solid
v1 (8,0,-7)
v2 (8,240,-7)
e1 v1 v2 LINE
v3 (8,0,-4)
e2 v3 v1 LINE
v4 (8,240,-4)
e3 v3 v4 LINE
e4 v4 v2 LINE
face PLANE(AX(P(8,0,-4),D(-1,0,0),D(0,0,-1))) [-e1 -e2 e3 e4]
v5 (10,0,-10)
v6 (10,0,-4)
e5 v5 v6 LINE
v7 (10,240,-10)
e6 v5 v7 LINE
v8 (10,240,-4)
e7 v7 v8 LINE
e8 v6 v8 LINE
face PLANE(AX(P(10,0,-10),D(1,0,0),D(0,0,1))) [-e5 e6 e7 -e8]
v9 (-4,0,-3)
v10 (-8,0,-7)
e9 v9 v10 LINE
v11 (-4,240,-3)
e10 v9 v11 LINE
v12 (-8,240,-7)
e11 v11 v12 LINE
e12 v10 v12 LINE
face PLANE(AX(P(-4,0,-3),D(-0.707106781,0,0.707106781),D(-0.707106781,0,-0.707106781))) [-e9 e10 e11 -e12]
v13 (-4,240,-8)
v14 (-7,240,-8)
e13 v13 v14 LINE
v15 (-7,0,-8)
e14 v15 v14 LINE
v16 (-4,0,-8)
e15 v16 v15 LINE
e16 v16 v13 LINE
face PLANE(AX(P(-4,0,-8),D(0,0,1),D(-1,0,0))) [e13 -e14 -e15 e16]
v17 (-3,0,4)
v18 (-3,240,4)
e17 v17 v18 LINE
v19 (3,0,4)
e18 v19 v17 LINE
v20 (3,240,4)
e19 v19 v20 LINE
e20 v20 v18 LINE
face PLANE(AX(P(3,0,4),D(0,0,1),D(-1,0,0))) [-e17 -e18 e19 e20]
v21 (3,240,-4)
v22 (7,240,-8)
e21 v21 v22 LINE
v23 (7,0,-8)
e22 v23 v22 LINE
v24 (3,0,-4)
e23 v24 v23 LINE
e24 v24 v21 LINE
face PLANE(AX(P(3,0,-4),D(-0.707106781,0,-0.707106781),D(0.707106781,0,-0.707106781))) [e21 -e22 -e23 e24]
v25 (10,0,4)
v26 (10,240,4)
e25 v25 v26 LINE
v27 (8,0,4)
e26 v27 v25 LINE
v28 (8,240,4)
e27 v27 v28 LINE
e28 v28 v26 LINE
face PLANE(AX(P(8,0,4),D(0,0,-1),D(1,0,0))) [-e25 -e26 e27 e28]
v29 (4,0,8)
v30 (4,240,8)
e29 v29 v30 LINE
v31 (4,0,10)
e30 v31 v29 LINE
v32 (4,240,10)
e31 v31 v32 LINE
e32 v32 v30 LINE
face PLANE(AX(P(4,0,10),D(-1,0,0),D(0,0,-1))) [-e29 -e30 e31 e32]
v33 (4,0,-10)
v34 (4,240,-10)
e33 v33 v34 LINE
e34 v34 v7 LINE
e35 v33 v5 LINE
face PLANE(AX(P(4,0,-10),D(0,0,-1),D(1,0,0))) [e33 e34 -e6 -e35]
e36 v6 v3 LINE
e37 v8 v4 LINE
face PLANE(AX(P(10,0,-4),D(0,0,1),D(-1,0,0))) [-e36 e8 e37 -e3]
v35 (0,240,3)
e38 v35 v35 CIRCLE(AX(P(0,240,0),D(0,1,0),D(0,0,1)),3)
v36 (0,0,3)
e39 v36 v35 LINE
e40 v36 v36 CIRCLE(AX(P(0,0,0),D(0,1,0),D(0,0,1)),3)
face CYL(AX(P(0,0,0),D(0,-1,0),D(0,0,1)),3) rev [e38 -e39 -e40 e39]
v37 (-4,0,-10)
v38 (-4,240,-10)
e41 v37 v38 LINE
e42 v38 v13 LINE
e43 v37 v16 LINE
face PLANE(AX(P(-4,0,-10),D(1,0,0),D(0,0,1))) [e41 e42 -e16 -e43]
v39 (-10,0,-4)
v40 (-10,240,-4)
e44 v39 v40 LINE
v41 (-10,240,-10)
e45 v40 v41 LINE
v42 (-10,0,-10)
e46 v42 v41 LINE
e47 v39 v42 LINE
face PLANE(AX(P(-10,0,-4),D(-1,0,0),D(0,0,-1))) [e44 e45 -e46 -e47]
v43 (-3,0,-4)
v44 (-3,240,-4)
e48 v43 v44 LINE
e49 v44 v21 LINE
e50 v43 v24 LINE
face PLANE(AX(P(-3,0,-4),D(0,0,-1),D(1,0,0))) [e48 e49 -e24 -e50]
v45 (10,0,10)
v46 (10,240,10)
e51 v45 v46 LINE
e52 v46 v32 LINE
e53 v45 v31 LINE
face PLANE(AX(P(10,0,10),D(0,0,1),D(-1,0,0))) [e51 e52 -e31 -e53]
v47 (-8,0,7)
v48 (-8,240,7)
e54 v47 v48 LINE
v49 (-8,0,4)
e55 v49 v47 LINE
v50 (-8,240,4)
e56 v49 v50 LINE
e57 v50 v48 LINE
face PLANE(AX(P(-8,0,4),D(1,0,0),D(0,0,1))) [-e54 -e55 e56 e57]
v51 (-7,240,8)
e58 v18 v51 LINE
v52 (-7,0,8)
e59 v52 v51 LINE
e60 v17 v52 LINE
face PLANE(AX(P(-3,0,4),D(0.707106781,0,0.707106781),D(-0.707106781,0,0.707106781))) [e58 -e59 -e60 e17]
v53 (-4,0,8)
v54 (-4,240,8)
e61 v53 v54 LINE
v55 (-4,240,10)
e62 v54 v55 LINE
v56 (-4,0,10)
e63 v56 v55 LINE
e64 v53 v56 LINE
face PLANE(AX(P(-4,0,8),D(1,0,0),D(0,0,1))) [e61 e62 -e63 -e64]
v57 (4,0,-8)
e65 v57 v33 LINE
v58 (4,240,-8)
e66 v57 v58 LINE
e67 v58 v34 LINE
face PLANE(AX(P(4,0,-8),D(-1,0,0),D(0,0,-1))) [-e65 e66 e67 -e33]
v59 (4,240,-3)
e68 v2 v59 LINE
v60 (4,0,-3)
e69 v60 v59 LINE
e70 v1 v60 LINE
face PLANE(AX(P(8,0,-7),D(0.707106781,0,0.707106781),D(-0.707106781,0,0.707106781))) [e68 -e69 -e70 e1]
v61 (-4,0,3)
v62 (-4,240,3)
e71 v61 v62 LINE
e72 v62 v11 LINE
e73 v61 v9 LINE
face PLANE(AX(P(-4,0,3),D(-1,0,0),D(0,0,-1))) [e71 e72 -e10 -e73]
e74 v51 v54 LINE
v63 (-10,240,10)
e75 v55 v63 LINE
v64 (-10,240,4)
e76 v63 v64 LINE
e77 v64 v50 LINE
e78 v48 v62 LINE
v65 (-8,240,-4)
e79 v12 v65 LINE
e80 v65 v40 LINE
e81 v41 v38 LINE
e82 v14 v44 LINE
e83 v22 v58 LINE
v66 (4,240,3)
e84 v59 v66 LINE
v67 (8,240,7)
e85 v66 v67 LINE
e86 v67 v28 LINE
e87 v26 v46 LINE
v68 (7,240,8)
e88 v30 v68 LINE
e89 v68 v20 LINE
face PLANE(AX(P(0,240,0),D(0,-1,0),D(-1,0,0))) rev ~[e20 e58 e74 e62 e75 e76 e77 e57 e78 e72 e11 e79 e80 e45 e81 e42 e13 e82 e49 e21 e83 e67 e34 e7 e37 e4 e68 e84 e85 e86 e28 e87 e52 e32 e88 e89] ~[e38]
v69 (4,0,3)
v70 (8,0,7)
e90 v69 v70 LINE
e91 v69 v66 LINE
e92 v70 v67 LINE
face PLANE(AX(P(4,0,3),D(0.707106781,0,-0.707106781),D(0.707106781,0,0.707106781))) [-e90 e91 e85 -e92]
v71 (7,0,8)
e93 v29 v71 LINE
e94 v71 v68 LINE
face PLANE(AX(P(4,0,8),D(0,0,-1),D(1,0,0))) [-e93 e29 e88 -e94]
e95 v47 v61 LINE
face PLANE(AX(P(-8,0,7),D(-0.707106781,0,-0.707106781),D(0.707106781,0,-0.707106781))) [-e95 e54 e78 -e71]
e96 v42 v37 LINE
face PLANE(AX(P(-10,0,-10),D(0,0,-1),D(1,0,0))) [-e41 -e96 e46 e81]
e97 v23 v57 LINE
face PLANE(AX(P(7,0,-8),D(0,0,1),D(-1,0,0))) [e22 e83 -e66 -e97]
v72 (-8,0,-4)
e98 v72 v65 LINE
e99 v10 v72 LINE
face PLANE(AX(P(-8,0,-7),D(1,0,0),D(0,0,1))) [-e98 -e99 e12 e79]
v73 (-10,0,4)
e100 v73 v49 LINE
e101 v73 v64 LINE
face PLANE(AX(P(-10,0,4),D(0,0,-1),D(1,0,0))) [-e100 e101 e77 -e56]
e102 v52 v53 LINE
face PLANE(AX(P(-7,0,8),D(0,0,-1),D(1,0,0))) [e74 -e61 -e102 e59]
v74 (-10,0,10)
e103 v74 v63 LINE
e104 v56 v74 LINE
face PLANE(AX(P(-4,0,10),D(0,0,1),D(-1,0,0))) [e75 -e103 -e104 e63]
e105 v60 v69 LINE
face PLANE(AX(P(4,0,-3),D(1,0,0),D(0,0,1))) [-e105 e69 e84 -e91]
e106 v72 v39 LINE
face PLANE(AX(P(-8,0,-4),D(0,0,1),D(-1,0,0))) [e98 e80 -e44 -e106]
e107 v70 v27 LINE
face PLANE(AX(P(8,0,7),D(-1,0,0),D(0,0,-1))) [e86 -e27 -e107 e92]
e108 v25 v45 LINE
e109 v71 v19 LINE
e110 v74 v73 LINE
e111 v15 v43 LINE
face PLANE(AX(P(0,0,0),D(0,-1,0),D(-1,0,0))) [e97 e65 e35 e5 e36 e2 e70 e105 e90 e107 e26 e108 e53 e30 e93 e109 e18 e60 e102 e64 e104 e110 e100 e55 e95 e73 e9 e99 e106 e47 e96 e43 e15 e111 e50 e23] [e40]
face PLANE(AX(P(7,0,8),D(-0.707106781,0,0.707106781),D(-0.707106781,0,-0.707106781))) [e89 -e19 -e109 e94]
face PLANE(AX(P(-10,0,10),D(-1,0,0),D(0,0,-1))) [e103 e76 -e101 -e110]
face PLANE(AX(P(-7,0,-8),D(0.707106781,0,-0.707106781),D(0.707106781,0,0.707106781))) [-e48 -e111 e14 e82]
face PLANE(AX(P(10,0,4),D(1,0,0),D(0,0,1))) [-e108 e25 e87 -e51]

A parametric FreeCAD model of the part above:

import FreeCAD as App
import Part
import Sketcher

doc = App.newDocument("Part")
body = doc.addObject("PartDesign::Body", "Body")

# Sketch on XZ plane
sketch1 = body.newObject("Sketcher::SketchObject", "Sketch")
sketch1.AttachmentSupport = (doc.getObject("XZ_Plane"), [""])
sketch1.MapMode = "FlatFace"
sketch1.addGeometry(Part.LineSegment(App.Vector(-4, -8, 0), App.Vector(-4, -10, 0)), False)
sketch1.addGeometry(Part.LineSegment(App.Vector(-4, -10, 0), App.Vector(-10, -10, 0)), False)
sketch1.addGeometry(Part.LineSegment(App.Vector(-10, -10, 0), App.Vector(-10, -4, 0)), False)
sketch1.addGeometry(Part.LineSegment(App.Vector(-10, -4, 0), App.Vector(-8, -4, 0)), False)
sketch1.addGeometry(Part.LineSegment(App.Vector(-8, -4, 0), App.Vector(-8, -7, 0)), False)
sketch1.addGeometry(Part.LineSegment(App.Vector(-8, -7, 0), App.Vector(-4, -3, 0)), False)
sketch1.addGeometry(Part.LineSegment(App.Vector(-4, -3, 0), App.Vector(-4, 3, 0)), False)
sketch1.addGeometry(Part.LineSegment(App.Vector(-4, 3, 0), App.Vector(-8, 7, 0)), False)
sketch1.addGeometry(Part.LineSegment(App.Vector(-8, 7, 0), App.Vector(-8, 4, 0)), False)
sketch1.addGeometry(Part.LineSegment(App.Vector(-8, 4, 0), App.Vector(-10, 4, 0)), False)
sketch1.addGeometry(Part.LineSegment(App.Vector(-10, 4, 0), App.Vector(-10, 10, 0)), False)
sketch1.addGeometry(Part.LineSegment(App.Vector(-10, 10, 0), App.Vector(-4, 10, 0)), False)
sketch1.addGeometry(Part.LineSegment(App.Vector(-4, 10, 0), App.Vector(-4, 8, 0)), False)
sketch1.addGeometry(Part.LineSegment(App.Vector(-4, 8, 0), App.Vector(-7, 8, 0)), False)
sketch1.addGeometry(Part.LineSegment(App.Vector(-7, 8, 0), App.Vector(-3, 4, 0)), False)
sketch1.addGeometry(Part.LineSegment(App.Vector(-3, 4, 0), App.Vector(3, 4, 0)), False)
sketch1.addGeometry(Part.LineSegment(App.Vector(3, 4, 0), App.Vector(7, 8, 0)), False)
sketch1.addGeometry(Part.LineSegment(App.Vector(7, 8, 0), App.Vector(4, 8, 0)), False)
sketch1.addGeometry(Part.LineSegment(App.Vector(4, 8, 0), App.Vector(4, 10, 0)), False)
sketch1.addGeometry(Part.LineSegment(App.Vector(4, 10, 0), App.Vector(10, 10, 0)), False)
sketch1.addGeometry(Part.LineSegment(App.Vector(10, 10, 0), App.Vector(10, 4, 0)), False)
sketch1.addGeometry(Part.LineSegment(App.Vector(10, 4, 0), App.Vector(8, 4, 0)), False)
sketch1.addGeometry(Part.LineSegment(App.Vector(8, 4, 0), App.Vector(8, 7, 0)), False)
sketch1.addGeometry(Part.LineSegment(App.Vector(8, 7, 0), App.Vector(4, 3, 0)), False)
sketch1.addGeometry(Part.LineSegment(App.Vector(4, 3, 0), App.Vector(4, -3, 0)), False)
sketch1.addGeometry(Part.LineSegment(App.Vector(4, -3, 0), App.Vector(8, -7, 0)), False)
sketch1.addGeometry(Part.LineSegment(App.Vector(8, -7, 0), App.Vector(8, -4, 0)), False)
sketch1.addGeometry(Part.LineSegment(App.Vector(8, -4, 0), App.Vector(10, -4, 0)), False)
sketch1.addGeometry(Part.LineSegment(App.Vector(10, -4, 0), App.Vector(10, -10, 0)), False)
sketch1.addGeometry(Part.LineSegment(App.Vector(10, -10, 0), App.Vector(4, -10, 0)), False)
sketch1.addGeometry(Part.LineSegment(App.Vector(4, -10, 0), App.Vector(4, -8, 0)), False)
sketch1.addGeometry(Part.LineSegment(App.Vector(4, -8, 0), App.Vector(7, -8, 0)), False)
sketch1.addGeometry(Part.LineSegment(App.Vector(7, -8, 0), App.Vector(3, -4, 0)), False)
sketch1.addGeometry(Part.LineSegment(App.Vector(3, -4, 0), App.Vector(-3, -4, 0)), False)
sketch1.addGeometry(Part.LineSegment(App.Vector(-3, -4, 0), App.Vector(-7, -8, 0)), False)
sketch1.addGeometry(Part.LineSegment(App.Vector(-7, -8, 0), App.Vector(-4, -8, 0)), False)
sketch1.addGeometry(Part.Circle(App.Vector(0, 0, 0), App.Vector(0, 0, 1), 3), False)
sketch1.addConstraint(Sketcher.Constraint("Coincident", 0, 2, 1, 1))
sketch1.addConstraint(Sketcher.Constraint("Coincident", 1, 2, 2, 1))
sketch1.addConstraint(Sketcher.Constraint("Coincident", 2, 2, 3, 1))
sketch1.addConstraint(Sketcher.Constraint("Coincident", 3, 2, 4, 1))
sketch1.addConstraint(Sketcher.Constraint("Coincident", 4, 2, 5, 1))
sketch1.addConstraint(Sketcher.Constraint("Coincident", 5, 2, 6, 1))
sketch1.addConstraint(Sketcher.Constraint("Coincident", 6, 2, 7, 1))
sketch1.addConstraint(Sketcher.Constraint("Coincident", 7, 2, 8, 1))
sketch1.addConstraint(Sketcher.Constraint("Coincident", 8, 2, 9, 1))
sketch1.addConstraint(Sketcher.Constraint("Coincident", 9, 2, 10, 1))
sketch1.addConstraint(Sketcher.Constraint("Coincident", 10, 2, 11, 1))
sketch1.addConstraint(Sketcher.Constraint("Coincident", 11, 2, 12, 1))
sketch1.addConstraint(Sketcher.Constraint("Coincident", 12, 2, 13, 1))
sketch1.addConstraint(Sketcher.Constraint("Coincident", 13, 2, 14, 1))
sketch1.addConstraint(Sketcher.Constraint("Coincident", 14, 2, 15, 1))
sketch1.addConstraint(Sketcher.Constraint("Coincident", 15, 2, 16, 1))
sketch1.addConstraint(Sketcher.Constraint("Coincident", 16, 2, 17, 1))
sketch1.addConstraint(Sketcher.Constraint("Coincident", 17, 2, 18, 1))
sketch1.addConstraint(Sketcher.Constraint("Coincident", 18, 2, 19, 1))
sketch1.addConstraint(Sketcher.Constraint("Coincident", 19, 2, 20, 1))
sketch1.addConstraint(Sketcher.Constraint("Coincident", 20, 2, 21, 1))
sketch1.addConstraint(Sketcher.Constraint("Coincident", 21, 2, 22, 1))
sketch1.addConstraint(Sketcher.Constraint("Coincident", 22, 2, 23, 1))
sketch1.addConstraint(Sketcher.Constraint("Coincident", 23, 2, 24, 1))
sketch1.addConstraint(Sketcher.Constraint("Coincident", 24, 2, 25, 1))
sketch1.addConstraint(Sketcher.Constraint("Coincident", 25, 2, 26, 1))
sketch1.addConstraint(Sketcher.Constraint("Coincident", 26, 2, 27, 1))
sketch1.addConstraint(Sketcher.Constraint("Coincident", 27, 2, 28, 1))
sketch1.addConstraint(Sketcher.Constraint("Coincident", 28, 2, 29, 1))
sketch1.addConstraint(Sketcher.Constraint("Coincident", 29, 2, 30, 1))
sketch1.addConstraint(Sketcher.Constraint("Coincident", 30, 2, 31, 1))
sketch1.addConstraint(Sketcher.Constraint("Coincident", 31, 2, 32, 1))
sketch1.addConstraint(Sketcher.Constraint("Coincident", 32, 2, 33, 1))
sketch1.addConstraint(Sketcher.Constraint("Coincident", 33, 2, 34, 1))
sketch1.addConstraint(Sketcher.Constraint("Coincident", 34, 2, 35, 1))
sketch1.addConstraint(Sketcher.Constraint("Coincident", 35, 2, 0, 1))
sketch1.addConstraint(Sketcher.Constraint("Vertical", 0))
sketch1.addConstraint(Sketcher.Constraint("Horizontal", 1))
sketch1.addConstraint(Sketcher.Constraint("Vertical", 2))
sketch1.addConstraint(Sketcher.Constraint("Horizontal", 3))
sketch1.addConstraint(Sketcher.Constraint("Vertical", 4))
sketch1.addConstraint(Sketcher.Constraint("Vertical", 6))
sketch1.addConstraint(Sketcher.Constraint("Vertical", 8))
sketch1.addConstraint(Sketcher.Constraint("Horizontal", 9))
sketch1.addConstraint(Sketcher.Constraint("Vertical", 10))
sketch1.addConstraint(Sketcher.Constraint("Horizontal", 11))
sketch1.addConstraint(Sketcher.Constraint("Vertical", 12))
sketch1.addConstraint(Sketcher.Constraint("Horizontal", 13))
sketch1.addConstraint(Sketcher.Constraint("Horizontal", 15))
sketch1.addConstraint(Sketcher.Constraint("Horizontal", 17))
sketch1.addConstraint(Sketcher.Constraint("Vertical", 18))
sketch1.addConstraint(Sketcher.Constraint("Horizontal", 19))
sketch1.addConstraint(Sketcher.Constraint("Vertical", 20))
sketch1.addConstraint(Sketcher.Constraint("Horizontal", 21))
sketch1.addConstraint(Sketcher.Constraint("Vertical", 22))
sketch1.addConstraint(Sketcher.Constraint("Vertical", 24))
sketch1.addConstraint(Sketcher.Constraint("Vertical", 26))
sketch1.addConstraint(Sketcher.Constraint("Horizontal", 27))
sketch1.addConstraint(Sketcher.Constraint("Vertical", 28))
sketch1.addConstraint(Sketcher.Constraint("Horizontal", 29))
sketch1.addConstraint(Sketcher.Constraint("Vertical", 30))
sketch1.addConstraint(Sketcher.Constraint("Horizontal", 31))
sketch1.addConstraint(Sketcher.Constraint("Horizontal", 33))
sketch1.addConstraint(Sketcher.Constraint("Horizontal", 35))
sketch1.addConstraint(Sketcher.Constraint("Coincident", 36, 3, -1, 1))
sketch1.addConstraint(Sketcher.Constraint("Symmetric", 0, 2, 18, 2, -1, 1))
sketch1.addConstraint(Sketcher.Constraint("Symmetric", 2, 2, 20, 2, -1, 1))
sketch1.addConstraint(Sketcher.Constraint("Symmetric", 4, 2, 22, 2, -1, 1))
sketch1.addConstraint(Sketcher.Constraint("Symmetric", 5, 2, 23, 2, -1, 1))
sketch1.addConstraint(Sketcher.Constraint("Symmetric", 7, 2, 25, 2, -1, 1))
sketch1.addConstraint(Sketcher.Constraint("Symmetric", 9, 2, 27, 2, -1, 1))
sketch1.addConstraint(Sketcher.Constraint("Symmetric", 11, 2, 29, 2, -1, 1))
sketch1.addConstraint(Sketcher.Constraint("Symmetric", 13, 2, 31, 2, -1, 1))
sketch1.addConstraint(Sketcher.Constraint("Symmetric", 14, 2, 32, 2, -1, 1))
sketch1.addConstraint(Sketcher.Constraint("Symmetric", 16, 2, 34, 2, -1, 1))
sketch1.addConstraint(Sketcher.Constraint("Symmetric", 13, 2, 16, 2, -2))
sketch1.addConstraint(Sketcher.Constraint("Symmetric", 11, 2, 18, 2, -2))
sketch1.addConstraint(Sketcher.Constraint("Symmetric", 9, 2, 20, 2, -2))
sketch1.addConstraint(Sketcher.Constraint("Symmetric", 7, 2, 22, 2, -2))
sketch1.addConstraint(Sketcher.Constraint("Perpendicular", 5, 7))
sketch1.addConstraint(Sketcher.Constraint("Parallel", 7, 14))
sketch1.addConstraint(Sketcher.Constraint("Perpendicular", 14, 16))
sketch1.addConstraint(Sketcher.Constraint("Perpendicular", 23, 25))
sketch1.addConstraint(Sketcher.Constraint("Perpendicular", 32, 34))
sketch1.addConstraint(Sketcher.Constraint("Horizontal", 9, 2, 14, 2))
sketch1.addConstraint(Sketcher.Constraint("Horizontal", 6, 2, 23, 2))
sketch1.addConstraint(Sketcher.Constraint("Vertical", 0, 2, 5, 2))
sketch1.addConstraint(Sketcher.Constraint("Equal", 11, 15))
sketch1.addConstraint(Sketcher.Constraint("Equal", 27, 0))
sketch1.addConstraint(Sketcher.Constraint("Equal", 33, 2))
sketch1.addConstraint(Sketcher.Constraint("Equal", 35, 4))
sketch1.addConstraint(Sketcher.Constraint("Equal", 2, 6))
sketch1.addConstraint(Sketcher.Constraint("Diameter", 36, 6.0))
sketch1.addConstraint(Sketcher.Constraint("DistanceX", 1, 2, 1, 1, 6.0))
sketch1.addConstraint(Sketcher.Constraint("DistanceX", 3, 1, 3, 2, 2.0))
sketch1.addConstraint(Sketcher.Constraint("DistanceX", 13, 2, 13, 1, 3.0))
pad1 = body.newObject("PartDesign::Pad", "Pad")
pad1.Profile = sketch1
pad1.Length = 240
pad1.Reversed = True

doc.recompute()
